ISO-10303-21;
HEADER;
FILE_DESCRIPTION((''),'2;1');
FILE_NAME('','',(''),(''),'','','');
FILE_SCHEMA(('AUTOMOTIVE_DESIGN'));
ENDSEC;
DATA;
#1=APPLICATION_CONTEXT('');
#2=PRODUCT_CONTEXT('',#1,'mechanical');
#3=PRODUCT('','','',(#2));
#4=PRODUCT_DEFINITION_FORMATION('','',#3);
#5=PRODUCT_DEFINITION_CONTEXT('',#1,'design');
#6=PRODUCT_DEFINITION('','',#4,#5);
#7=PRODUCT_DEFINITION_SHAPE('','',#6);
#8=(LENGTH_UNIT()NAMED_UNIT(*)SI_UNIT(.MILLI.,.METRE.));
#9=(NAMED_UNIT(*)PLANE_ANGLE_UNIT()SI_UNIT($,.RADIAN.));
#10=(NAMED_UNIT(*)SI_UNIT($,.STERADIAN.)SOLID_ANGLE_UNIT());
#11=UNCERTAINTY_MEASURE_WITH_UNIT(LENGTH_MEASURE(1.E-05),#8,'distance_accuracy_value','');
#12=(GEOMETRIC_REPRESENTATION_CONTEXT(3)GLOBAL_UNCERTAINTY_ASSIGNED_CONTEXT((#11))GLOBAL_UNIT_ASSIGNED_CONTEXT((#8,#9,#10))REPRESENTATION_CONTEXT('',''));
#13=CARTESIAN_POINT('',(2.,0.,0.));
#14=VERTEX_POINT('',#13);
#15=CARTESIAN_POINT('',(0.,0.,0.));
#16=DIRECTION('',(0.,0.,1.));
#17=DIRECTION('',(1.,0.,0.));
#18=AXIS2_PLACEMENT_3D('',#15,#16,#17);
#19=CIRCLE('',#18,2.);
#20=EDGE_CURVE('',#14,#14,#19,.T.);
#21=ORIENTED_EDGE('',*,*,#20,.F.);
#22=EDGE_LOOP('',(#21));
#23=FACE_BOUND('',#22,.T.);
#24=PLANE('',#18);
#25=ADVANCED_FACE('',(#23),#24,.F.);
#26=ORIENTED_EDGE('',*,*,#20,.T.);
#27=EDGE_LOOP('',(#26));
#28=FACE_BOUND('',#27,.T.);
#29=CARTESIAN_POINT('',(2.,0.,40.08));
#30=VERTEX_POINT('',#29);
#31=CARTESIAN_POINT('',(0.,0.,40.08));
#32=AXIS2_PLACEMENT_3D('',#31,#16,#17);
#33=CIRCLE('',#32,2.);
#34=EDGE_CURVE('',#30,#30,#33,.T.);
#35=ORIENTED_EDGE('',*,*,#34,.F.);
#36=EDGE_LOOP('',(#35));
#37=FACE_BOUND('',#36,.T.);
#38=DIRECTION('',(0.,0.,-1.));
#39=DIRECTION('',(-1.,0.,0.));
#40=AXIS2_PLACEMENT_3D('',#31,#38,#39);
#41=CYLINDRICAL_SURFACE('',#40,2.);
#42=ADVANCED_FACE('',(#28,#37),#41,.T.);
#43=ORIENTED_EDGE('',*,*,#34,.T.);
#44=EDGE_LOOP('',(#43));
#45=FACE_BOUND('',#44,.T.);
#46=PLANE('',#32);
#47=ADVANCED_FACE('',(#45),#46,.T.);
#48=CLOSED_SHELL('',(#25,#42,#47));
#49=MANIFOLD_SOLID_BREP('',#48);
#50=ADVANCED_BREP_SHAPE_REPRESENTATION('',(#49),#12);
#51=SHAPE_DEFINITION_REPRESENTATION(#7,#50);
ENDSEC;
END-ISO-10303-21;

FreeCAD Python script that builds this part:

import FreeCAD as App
import Part
import Sketcher
Q = App.Units.Quantity

doc = App.newDocument("Part")
params = doc.addObject("Spreadsheet::Sheet", "Params")
for row, (alias, value) in enumerate([
    ("sketch1_diameter", "4 mm"),
    ("pad1_length", "40.08 mm"),
], start=1):
    params.set(f"A{row}", alias)
    params.set(f"B{row}", "=" + value)
    params.setAlias(f"B{row}", alias)

body = doc.addObject("PartDesign::Body", "Body")

# Sketch on XY plane
sketch1 = doc.addObject("Sketcher::SketchObject", "Sketch")
body.addObject(sketch1)
sketch1.AttachmentSupport = (doc.XY_Plane, [""])
sketch1.MapMode = "FlatFace"
sketch1.addGeometry(Part.Circle(App.Vector(0, 0, 0), App.Vector(0, 0, 1), 2), False)
sketch1.addConstraint([
    Sketcher.Constraint("Coincident", 0, 3, -1, 1),
    Sketcher.Constraint("Diameter", 0, Q("4 mm")),
])
sketch1.setExpression("Constraints[1]", "Params.sketch1_diameter")
pad1 = doc.addObject("PartDesign::Pad", "Pad")
body.addObject(pad1)
pad1.Profile = sketch1
pad1.setExpression("Length", "Params.pad1_length")

doc.recompute()
